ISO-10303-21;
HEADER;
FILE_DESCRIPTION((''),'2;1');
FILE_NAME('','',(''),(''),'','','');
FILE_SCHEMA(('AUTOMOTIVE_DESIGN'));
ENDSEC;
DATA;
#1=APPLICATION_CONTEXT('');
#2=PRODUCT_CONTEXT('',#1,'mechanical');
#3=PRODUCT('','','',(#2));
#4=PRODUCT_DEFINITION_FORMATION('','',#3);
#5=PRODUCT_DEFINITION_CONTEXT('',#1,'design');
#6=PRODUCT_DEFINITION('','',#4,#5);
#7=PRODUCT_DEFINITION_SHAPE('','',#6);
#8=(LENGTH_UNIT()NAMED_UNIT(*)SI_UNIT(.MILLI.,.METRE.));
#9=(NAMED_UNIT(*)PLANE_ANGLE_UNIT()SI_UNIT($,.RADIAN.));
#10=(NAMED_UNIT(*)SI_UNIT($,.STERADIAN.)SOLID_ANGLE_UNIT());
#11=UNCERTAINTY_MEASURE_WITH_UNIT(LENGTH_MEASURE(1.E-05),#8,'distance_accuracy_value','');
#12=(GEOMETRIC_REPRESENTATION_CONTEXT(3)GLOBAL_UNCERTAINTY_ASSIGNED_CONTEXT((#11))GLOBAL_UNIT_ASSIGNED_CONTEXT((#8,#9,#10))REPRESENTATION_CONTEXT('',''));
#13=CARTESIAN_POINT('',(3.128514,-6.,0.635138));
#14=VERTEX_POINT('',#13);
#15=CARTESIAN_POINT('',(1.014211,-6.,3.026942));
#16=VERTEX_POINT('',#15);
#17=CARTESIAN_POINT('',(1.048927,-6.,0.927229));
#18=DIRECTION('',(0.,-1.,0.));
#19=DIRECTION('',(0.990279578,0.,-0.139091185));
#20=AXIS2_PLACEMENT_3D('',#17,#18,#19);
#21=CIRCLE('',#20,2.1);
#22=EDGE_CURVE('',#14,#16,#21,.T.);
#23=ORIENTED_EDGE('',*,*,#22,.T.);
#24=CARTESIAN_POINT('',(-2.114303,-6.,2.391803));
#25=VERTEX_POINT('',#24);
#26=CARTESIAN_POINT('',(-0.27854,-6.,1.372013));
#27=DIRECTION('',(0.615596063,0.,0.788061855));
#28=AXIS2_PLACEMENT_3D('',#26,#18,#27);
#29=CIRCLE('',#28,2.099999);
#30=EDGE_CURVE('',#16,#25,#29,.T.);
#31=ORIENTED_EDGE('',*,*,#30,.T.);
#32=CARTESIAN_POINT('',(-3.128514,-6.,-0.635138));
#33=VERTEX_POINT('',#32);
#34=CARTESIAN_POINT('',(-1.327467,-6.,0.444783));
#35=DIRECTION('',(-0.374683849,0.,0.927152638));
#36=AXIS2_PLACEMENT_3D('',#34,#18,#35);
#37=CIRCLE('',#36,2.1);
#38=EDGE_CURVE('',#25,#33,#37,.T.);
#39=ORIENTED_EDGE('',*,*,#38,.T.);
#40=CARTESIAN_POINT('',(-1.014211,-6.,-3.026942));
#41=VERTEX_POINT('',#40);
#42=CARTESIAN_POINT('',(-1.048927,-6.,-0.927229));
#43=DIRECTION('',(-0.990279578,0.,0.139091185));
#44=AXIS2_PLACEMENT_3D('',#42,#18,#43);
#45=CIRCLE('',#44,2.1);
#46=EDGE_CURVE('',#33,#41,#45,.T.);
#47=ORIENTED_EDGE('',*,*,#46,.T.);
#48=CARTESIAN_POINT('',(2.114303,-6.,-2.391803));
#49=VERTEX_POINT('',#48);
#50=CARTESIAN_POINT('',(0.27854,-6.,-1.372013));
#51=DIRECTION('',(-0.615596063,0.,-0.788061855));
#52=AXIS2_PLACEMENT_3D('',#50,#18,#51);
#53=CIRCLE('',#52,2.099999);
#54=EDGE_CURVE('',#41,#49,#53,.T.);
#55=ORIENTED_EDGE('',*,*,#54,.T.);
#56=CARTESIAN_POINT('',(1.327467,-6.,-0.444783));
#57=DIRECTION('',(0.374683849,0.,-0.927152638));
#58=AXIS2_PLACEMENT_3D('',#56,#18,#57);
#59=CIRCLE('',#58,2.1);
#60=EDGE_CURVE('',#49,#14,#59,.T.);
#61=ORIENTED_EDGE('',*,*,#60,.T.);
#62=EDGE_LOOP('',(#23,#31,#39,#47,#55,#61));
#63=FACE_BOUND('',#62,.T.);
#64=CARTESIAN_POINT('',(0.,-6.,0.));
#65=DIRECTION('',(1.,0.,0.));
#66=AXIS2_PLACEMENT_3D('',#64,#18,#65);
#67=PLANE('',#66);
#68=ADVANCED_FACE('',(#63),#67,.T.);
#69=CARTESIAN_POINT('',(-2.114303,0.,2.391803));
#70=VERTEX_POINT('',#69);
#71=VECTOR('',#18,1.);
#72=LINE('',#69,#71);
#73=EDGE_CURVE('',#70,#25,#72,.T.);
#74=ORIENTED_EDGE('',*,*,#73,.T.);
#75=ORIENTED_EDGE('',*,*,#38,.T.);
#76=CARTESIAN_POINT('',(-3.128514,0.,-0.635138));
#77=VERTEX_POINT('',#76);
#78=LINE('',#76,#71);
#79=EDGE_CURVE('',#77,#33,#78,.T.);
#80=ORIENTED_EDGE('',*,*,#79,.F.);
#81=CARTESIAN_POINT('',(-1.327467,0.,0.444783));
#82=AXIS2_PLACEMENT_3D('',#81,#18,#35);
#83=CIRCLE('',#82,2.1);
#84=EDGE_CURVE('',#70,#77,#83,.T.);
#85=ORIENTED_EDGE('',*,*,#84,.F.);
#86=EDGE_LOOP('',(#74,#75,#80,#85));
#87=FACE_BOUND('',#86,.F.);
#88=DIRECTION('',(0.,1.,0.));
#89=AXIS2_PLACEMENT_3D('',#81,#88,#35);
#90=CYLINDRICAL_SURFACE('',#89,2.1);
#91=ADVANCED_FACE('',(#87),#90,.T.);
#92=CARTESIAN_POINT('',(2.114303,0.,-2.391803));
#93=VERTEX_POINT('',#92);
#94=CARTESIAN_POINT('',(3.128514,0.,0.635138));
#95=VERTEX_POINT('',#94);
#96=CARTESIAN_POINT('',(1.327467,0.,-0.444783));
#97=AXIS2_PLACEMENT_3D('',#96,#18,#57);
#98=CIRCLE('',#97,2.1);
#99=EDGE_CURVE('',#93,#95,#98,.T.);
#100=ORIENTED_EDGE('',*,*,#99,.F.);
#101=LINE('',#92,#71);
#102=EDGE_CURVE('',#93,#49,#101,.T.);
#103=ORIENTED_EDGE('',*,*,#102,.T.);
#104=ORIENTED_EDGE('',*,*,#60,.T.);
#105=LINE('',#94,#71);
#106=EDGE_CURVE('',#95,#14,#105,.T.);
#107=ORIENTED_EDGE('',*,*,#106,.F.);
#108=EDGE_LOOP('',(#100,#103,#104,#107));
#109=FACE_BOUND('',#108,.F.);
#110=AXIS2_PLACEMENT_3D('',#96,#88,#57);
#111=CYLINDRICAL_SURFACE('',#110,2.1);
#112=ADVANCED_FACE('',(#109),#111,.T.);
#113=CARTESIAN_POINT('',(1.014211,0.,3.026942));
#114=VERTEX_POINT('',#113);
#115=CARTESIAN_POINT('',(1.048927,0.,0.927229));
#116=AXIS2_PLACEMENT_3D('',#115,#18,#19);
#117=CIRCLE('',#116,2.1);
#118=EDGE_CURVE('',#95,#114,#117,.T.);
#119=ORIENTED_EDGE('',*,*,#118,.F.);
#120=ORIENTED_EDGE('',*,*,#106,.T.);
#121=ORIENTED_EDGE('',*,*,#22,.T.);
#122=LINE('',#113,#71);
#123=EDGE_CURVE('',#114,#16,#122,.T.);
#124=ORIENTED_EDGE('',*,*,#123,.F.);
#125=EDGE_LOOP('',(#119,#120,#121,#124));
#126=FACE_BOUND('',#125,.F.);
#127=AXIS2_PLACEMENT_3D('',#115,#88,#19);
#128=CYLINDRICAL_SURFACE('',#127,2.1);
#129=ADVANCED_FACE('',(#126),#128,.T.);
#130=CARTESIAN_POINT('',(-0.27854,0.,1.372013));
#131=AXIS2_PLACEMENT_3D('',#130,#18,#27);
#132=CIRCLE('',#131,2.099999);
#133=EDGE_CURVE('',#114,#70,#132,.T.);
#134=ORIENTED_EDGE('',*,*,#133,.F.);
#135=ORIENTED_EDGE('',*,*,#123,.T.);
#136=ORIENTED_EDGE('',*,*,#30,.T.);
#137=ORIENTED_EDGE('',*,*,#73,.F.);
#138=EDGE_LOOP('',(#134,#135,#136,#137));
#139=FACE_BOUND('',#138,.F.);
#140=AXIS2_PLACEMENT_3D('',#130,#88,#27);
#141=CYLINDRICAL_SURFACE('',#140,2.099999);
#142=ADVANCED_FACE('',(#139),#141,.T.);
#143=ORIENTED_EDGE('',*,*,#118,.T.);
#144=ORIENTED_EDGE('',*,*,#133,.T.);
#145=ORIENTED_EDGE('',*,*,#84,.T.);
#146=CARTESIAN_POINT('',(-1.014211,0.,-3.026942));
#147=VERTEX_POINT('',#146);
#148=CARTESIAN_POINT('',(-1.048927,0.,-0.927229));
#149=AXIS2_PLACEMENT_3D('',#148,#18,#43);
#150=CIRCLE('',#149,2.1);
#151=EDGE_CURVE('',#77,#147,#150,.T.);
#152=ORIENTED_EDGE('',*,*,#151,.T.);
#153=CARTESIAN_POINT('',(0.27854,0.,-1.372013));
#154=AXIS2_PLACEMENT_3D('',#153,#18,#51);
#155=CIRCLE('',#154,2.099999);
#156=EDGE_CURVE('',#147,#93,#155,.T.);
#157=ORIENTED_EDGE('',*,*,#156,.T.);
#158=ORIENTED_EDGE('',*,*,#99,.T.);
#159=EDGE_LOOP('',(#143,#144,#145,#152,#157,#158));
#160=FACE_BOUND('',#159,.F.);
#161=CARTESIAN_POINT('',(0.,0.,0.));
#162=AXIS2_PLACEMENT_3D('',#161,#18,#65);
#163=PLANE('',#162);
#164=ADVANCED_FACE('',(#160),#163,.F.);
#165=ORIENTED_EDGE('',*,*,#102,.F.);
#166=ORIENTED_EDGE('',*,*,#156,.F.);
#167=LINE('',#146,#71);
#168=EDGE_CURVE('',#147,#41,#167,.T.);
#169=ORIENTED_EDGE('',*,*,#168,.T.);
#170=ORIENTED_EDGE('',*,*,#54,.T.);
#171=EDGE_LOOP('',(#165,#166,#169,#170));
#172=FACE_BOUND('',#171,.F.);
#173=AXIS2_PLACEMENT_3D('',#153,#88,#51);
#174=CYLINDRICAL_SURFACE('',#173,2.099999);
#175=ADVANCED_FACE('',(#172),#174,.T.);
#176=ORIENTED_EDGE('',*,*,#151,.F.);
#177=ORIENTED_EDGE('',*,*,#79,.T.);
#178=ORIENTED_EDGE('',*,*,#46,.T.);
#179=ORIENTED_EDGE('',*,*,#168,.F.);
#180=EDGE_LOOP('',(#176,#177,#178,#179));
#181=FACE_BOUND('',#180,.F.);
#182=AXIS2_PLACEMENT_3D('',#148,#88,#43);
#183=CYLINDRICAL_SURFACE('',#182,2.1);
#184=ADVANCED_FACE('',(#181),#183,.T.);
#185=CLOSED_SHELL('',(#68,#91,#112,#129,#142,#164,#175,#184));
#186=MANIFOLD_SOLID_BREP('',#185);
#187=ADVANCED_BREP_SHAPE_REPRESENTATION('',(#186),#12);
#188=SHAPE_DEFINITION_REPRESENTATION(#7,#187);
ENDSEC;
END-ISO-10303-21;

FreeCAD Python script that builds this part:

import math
import FreeCAD as App
import Part
import Sketcher
from FreeCAD import Vector
Q = App.Units.Quantity

doc = App.newDocument("Part")
body = doc.addObject("PartDesign::Body", "Body")

sketch1 = body.newObject("Sketcher::SketchObject", "Sketch")
sketch1.AttachmentSupport = (doc.getObject("XZ_Plane"), [""])
sketch1.MapMode = "FlatFace"
sketch1.addGeometry([
    Part.ArcOfCircle(Part.Circle(Vector(1.3, -0.4, 0), Vector(0, 0, 1), 2.1), math.radians(-68), math.radians(31)),
    Part.ArcOfCircle(Part.Circle(Vector(1, 0.9, 0), Vector(0, 0, 1), 2.1), math.radians(-8), math.radians(91)),
    Part.ArcOfCircle(Part.Circle(Vector(-0.3, 1.4, 0), Vector(0, 0, 1), 2.1), math.radians(52), math.radians(151)),
    Part.ArcOfCircle(Part.Circle(Vector(-1.3, 0.4, 0), Vector(0, 0, 1), 2.1), math.radians(112), math.radians(211)),
    Part.ArcOfCircle(Part.Circle(Vector(-1, -0.9, 0), Vector(0, 0, 1), 2.1), math.radians(172), math.radians(271)),
    Part.ArcOfCircle(Part.Circle(Vector(0.3, -1.4, 0), Vector(0, 0, 1), 2.1), math.radians(-128), math.radians(-29)),
], False)
sketch1.addConstraint([
    Sketcher.Constraint("Coincident", 0, 2, 1, 1),
    Sketcher.Constraint("Coincident", 1, 2, 2, 1),
    Sketcher.Constraint("Coincident", 2, 2, 3, 1),
    Sketcher.Constraint("Coincident", 3, 2, 4, 1),
    Sketcher.Constraint("Coincident", 4, 2, 5, 1),
    Sketcher.Constraint("Coincident", 5, 2, 0, 1),
    Sketcher.Constraint("Equal", 0, 1),
    Sketcher.Constraint("Equal", 1, 2),
    Sketcher.Constraint("Equal", 2, 3),
    Sketcher.Constraint("Equal", 3, 4),
    Sketcher.Constraint("Equal", 4, 5),
    Sketcher.Constraint("Symmetric", 0, 3, 3, 3, -1, 1),
    Sketcher.Constraint("Symmetric", 1, 3, 4, 3, -1, 1),
    Sketcher.Constraint("Symmetric", 2, 3, 5, 3, -1, 1),
    Sketcher.Constraint("Radius", 0, Q("2.1 mm")),
    Sketcher.Constraint("DistanceY", -1, 1, 1, 3, Q("0.927229 mm")),
    Sketcher.Constraint("DistanceX", 2, 3, -1, 1, Q("0.27854 mm")),
    Sketcher.Constraint("DistanceX", -1, 1, 1, 2, Q("1.014211 mm")),
    Sketcher.Constraint("DistanceY", -1, 1, 1, 2, Q("3.026942 mm")),
    Sketcher.Constraint("DistanceX", 1, 3, 0, 3, Q("0.27854 mm")),
    Sketcher.Constraint("DistanceY", 3, 3, 2, 3, Q("0.92723 mm")),
])
pad1 = body.newObject("PartDesign::Pad", "Pad")
pad1.Profile = sketch1
pad1.Length = 6

doc.recompute()
